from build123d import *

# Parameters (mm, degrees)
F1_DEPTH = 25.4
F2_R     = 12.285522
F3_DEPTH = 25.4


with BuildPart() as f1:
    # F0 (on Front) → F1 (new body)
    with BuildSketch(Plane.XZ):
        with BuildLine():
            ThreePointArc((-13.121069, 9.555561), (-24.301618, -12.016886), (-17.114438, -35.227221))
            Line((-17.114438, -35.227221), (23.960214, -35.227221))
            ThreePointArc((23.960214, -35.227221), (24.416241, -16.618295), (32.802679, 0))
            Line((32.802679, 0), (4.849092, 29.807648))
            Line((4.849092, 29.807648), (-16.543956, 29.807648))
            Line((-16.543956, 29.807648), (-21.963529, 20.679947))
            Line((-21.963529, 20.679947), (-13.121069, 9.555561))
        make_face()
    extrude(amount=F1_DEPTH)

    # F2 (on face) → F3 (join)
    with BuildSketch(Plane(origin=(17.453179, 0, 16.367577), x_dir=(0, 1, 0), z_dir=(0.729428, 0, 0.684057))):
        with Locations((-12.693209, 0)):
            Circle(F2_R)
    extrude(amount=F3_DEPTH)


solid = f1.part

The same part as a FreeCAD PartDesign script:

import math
import FreeCAD as App
import Part
import Sketcher
from FreeCAD import Vector
Q = App.Units.Quantity

doc = App.newDocument("Part")
params = doc.addObject("Spreadsheet::Sheet", "Params")
for row, (alias, value) in enumerate([
    ("pad1_length", "1 in"),
    ("pad2_length", "1 in"),
], start=1):
    params.set(f"A{row}", alias)
    params.set(f"B{row}", "=" + value)
    params.setAlias(f"B{row}", alias)

body = doc.addObject("PartDesign::Body", "Body")

# Sketch on XZ plane
sketch1 = doc.addObject("Sketcher::SketchObject", "Sketch")
body.addObject(sketch1)
sketch1.AttachmentSupport = (doc.XZ_Plane, [""])
sketch1.MapMode = "FlatFace"
sketch1.addGeometry([
    Part.ArcOfCircle(Part.Circle(Vector(7.586796, -14.860439, 0), Vector(0, 0, 1), 32.014946), math.radians(130.302172), math.radians(219.506429)),  # 0
    Part.LineSegment(Vector(-17.114438, -35.227221, 0), Vector(23.960214, -35.227221, 0)),  # 1
    Part.ArcOfCircle(Part.Circle(Vector(65.519044, -26.935604, 0), Vector(0, 0, 1), 42.377911), math.radians(140.535144), math.radians(191.28322)),  # 2
    Part.LineSegment(Vector(32.802679, 0, 0), Vector(4.849092, 29.807648, 0)),  # 3
    Part.LineSegment(Vector(4.849092, 29.807648, 0), Vector(-16.543956, 29.807648, 0)),  # 4
    Part.LineSegment(Vector(-16.543956, 29.807648, 0), Vector(-21.963529, 20.679947, 0)),  # 5
    Part.LineSegment(Vector(-21.963529, 20.679947, 0), Vector(-13.121069, 9.555561, 0)),  # 6
], False)
sketch1.addConstraint([
    Sketcher.Constraint("Coincident", 0, 2, 1, 1),
    Sketcher.Constraint("Coincident", 1, 2, 2, 2),
    Sketcher.Constraint("Coincident", 2, 1, 3, 1),
    Sketcher.Constraint("Coincident", 3, 2, 4, 1),
    Sketcher.Constraint("Coincident", 4, 2, 5, 1),
    Sketcher.Constraint("Coincident", 5, 2, 6, 1),
    Sketcher.Constraint("Coincident", 6, 2, 0, 1),
    Sketcher.Constraint("Horizontal", 1),
    Sketcher.Constraint("Horizontal", 4),
    Sketcher.Constraint("PointOnObject", 2, 1, -1),
    Sketcher.Constraint("Radius", 2, Q("42.377911 mm")),
    Sketcher.Constraint("Radius", 0, Q("32.014946 mm")),
    Sketcher.Constraint("DistanceY", 2, 3, 0, 3, Q("0.4754002 in")),
    Sketcher.Constraint("Distance", 5, Q("10.615399 mm")),
    Sketcher.Constraint("DistanceX", 4, 2, 4, 1, Q("21.393048 mm")),
    Sketcher.Constraint("DistanceY", 5, 2, 4, 2, Q("9.127701 mm")),
    Sketcher.Constraint("DistanceY", 0, 3, 6, 2, Q("24.416 mm")),
    Sketcher.Constraint("DistanceX", 1, 1, 1, 2, Q("41.074652 mm")),
    Sketcher.Constraint("DistanceY", 0, 3, -1, 1, Q("14.860439 mm")),
    Sketcher.Constraint("DistanceX", 0, 2, -1, 1, Q("17.114438 mm")),
    Sketcher.Constraint("DistanceY", 0, 2, -1, 1, Q("35.227221 mm")),
    Sketcher.Constraint("DistanceX", -1, 1, 3, 2, Q("4.849092 mm")),
    Sketcher.Constraint("DistanceY", -1, 1, 3, 2, Q("29.807648 mm")),
])
pad1 = doc.addObject("PartDesign::Pad", "Pad")
body.addObject(pad1)
pad1.Profile = sketch1
pad1.setExpression("Length", "Params.pad1_length")

# Sketch on an angled plane
sketch2 = doc.addObject("Sketcher::SketchObject", "Sketch001")
body.addObject(sketch2)
sketch2.Placement = App.Placement(Vector(17.453179, 0, 16.367577), App.Rotation(Vector(0, 1, 0), Vector(-0.684057278, 0, 0.729428297), Vector(0.729428297, 0, 0.684057278), "ZXY"))
sketch2.addGeometry(Part.Circle(Vector(-12.693209, 0, 0), Vector(0, 0, 1), 12.285522), False)
sketch2.addConstraint([
    Sketcher.Constraint("PointOnObject", 0, 3, -1),
    Sketcher.Constraint("Diameter", 0, Q("24.571044 mm")),
    Sketcher.Constraint("DistanceX", 0, 3, -1, 1, Q("12.693209 mm")),
])
pad2 = doc.addObject("PartDesign::Pad", "Pad001")
body.addObject(pad2)
pad2.Profile = sketch2
pad2.setExpression("Length", "Params.pad2_length")

doc.recompute()
